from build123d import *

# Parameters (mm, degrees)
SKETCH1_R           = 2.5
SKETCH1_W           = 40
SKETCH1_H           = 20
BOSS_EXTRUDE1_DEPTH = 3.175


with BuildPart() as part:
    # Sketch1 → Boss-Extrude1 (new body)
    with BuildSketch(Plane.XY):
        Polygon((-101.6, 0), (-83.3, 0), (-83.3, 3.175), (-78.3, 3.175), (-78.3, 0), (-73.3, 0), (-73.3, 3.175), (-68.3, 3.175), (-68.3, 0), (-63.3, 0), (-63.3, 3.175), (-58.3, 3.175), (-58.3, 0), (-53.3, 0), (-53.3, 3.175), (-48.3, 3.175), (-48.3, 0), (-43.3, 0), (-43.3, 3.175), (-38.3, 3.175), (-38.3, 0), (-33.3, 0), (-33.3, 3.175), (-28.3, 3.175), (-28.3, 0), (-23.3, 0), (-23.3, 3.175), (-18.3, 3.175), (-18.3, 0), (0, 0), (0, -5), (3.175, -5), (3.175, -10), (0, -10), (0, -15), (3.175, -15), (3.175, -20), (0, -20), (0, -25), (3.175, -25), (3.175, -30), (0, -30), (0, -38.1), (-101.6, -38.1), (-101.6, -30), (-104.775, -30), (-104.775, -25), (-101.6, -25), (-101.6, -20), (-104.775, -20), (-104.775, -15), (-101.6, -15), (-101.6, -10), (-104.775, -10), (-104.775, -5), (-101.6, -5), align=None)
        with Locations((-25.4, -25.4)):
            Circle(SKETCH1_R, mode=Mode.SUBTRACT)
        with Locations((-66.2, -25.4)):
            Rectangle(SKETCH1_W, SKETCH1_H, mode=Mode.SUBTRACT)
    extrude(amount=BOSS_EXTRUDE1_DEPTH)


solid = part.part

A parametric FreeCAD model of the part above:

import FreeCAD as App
import Part
import Sketcher
from FreeCAD import Vector
Q = App.Units.Quantity

doc = App.newDocument("Part")
body = doc.addObject("PartDesign::Body", "Body")

sketch1 = body.newObject("Sketcher::SketchObject", "Sketch")
sketch1.AttachmentSupport = (doc.getObject("XY_Plane"), [""])
sketch1.MapMode = "FlatFace"
sketch1.addGeometry([
    Part.LineSegment(Vector(-83.3, 0, 0), Vector(-101.6, 0, 0)),
    Part.LineSegment(Vector(-101.6, 0, 0), Vector(-101.6, -5, 0)),
    Part.LineSegment(Vector(-101.6, -5, 0), Vector(-104.8, -5, 0)),
    Part.LineSegment(Vector(-104.8, -5, 0), Vector(-104.8, -10, 0)),
    Part.LineSegment(Vector(-104.8, -10, 0), Vector(-101.6, -10, 0)),
    Part.LineSegment(Vector(-101.6, -10, 0), Vector(-101.6, -15, 0)),
    Part.LineSegment(Vector(-101.6, -15, 0), Vector(-104.8, -15, 0)),
    Part.LineSegment(Vector(-104.8, -15, 0), Vector(-104.8, -20, 0)),
    Part.LineSegment(Vector(-104.8, -20, 0), Vector(-101.6, -20, 0)),
    Part.LineSegment(Vector(-101.6, -20, 0), Vector(-101.6, -25, 0)),
    Part.LineSegment(Vector(-101.6, -25, 0), Vector(-104.8, -25, 0)),
    Part.LineSegment(Vector(-104.8, -25, 0), Vector(-104.8, -30, 0)),
    Part.LineSegment(Vector(-104.8, -30, 0), Vector(-101.6, -30, 0)),
    Part.LineSegment(Vector(-101.6, -30, 0), Vector(-101.6, -38.1, 0)),
    Part.LineSegment(Vector(-101.6, -38.1, 0), Vector(0, -38.1, 0)),
    Part.LineSegment(Vector(0, -38.1, 0), Vector(0, -30, 0)),
    Part.LineSegment(Vector(0, -30, 0), Vector(3.2, -30, 0)),
    Part.LineSegment(Vector(3.2, -30, 0), Vector(3.2, -25, 0)),
    Part.LineSegment(Vector(3.2, -25, 0), Vector(0, -25, 0)),
    Part.LineSegment(Vector(0, -25, 0), Vector(0, -20, 0)),
    Part.LineSegment(Vector(0, -20, 0), Vector(3.2, -20, 0)),
    Part.LineSegment(Vector(3.2, -20, 0), Vector(3.2, -15, 0)),
    Part.LineSegment(Vector(3.2, -15, 0), Vector(0, -15, 0)),
    Part.LineSegment(Vector(0, -15, 0), Vector(0, -10, 0)),
    Part.LineSegment(Vector(0, -10, 0), Vector(3.2, -10, 0)),
    Part.LineSegment(Vector(3.2, -10, 0), Vector(3.2, -5, 0)),
    Part.LineSegment(Vector(3.2, -5, 0), Vector(0, -5, 0)),
    Part.LineSegment(Vector(0, -5, 0), Vector(0, 0, 0)),
    Part.LineSegment(Vector(0, 0, 0), Vector(-18.3, 0, 0)),
    Part.LineSegment(Vector(-18.3, 0, 0), Vector(-18.3, 3.2, 0)),
    Part.LineSegment(Vector(-18.3, 3.2, 0), Vector(-23.3, 3.2, 0)),
    Part.LineSegment(Vector(-23.3, 3.2, 0), Vector(-23.3, 0, 0)),
    Part.LineSegment(Vector(-23.3, 0, 0), Vector(-28.3, 0, 0)),
    Part.LineSegment(Vector(-28.3, 0, 0), Vector(-28.3, 3.2, 0)),
    Part.LineSegment(Vector(-28.3, 3.2, 0), Vector(-33.3, 3.2, 0)),
    Part.LineSegment(Vector(-33.3, 3.2, 0), Vector(-33.3, 0, 0)),
    Part.LineSegment(Vector(-33.3, 0, 0), Vector(-38.3, 0, 0)),
    Part.LineSegment(Vector(-38.3, 0, 0), Vector(-38.3, 3.2, 0)),
    Part.LineSegment(Vector(-38.3, 3.2, 0), Vector(-43.3, 3.2, 0)),
    Part.LineSegment(Vector(-43.3, 3.2, 0), Vector(-43.3, 0, 0)),
    Part.LineSegment(Vector(-43.3, 0, 0), Vector(-48.3, 0, 0)),
    Part.LineSegment(Vector(-48.3, 0, 0), Vector(-48.3, 3.2, 0)),
    Part.LineSegment(Vector(-48.3, 3.2, 0), Vector(-53.3, 3.2, 0)),
    Part.LineSegment(Vector(-53.3, 3.2, 0), Vector(-53.3, 0, 0)),
    Part.LineSegment(Vector(-53.3, 0, 0), Vector(-58.3, 0, 0)),
    Part.LineSegment(Vector(-58.3, 0, 0), Vector(-58.3, 3.2, 0)),
    Part.LineSegment(Vector(-58.3, 3.2, 0), Vector(-63.3, 3.2, 0)),
    Part.LineSegment(Vector(-63.3, 3.2, 0), Vector(-63.3, 0, 0)),
    Part.LineSegment(Vector(-63.3, 0, 0), Vector(-68.3, 0, 0)),
    Part.LineSegment(Vector(-68.3, 0, 0), Vector(-68.3, 3.2, 0)),
    Part.LineSegment(Vector(-68.3, 3.2, 0), Vector(-73.3, 3.2, 0)),
    Part.LineSegment(Vector(-73.3, 3.2, 0), Vector(-73.3, 0, 0)),
    Part.LineSegment(Vector(-73.3, 0, 0), Vector(-78.3, 0, 0)),
    Part.LineSegment(Vector(-78.3, 0, 0), Vector(-78.3, 3.2, 0)),
    Part.LineSegment(Vector(-78.3, 3.2, 0), Vector(-83.3, 3.2, 0)),
    Part.LineSegment(Vector(-83.3, 3.2, 0), Vector(-83.3, 0, 0)),
    Part.Circle(Vector(-25.4, -25.4, 0), Vector(0, 0, 1), 2.5),
    Part.LineSegment(Vector(-86.2, -35.4, 0), Vector(-86.2, -15.4, 0)),
    Part.LineSegment(Vector(-86.2, -15.4, 0), Vector(-46.2, -15.4, 0)),
    Part.LineSegment(Vector(-46.2, -15.4, 0), Vector(-46.2, -35.4, 0)),
    Part.LineSegment(Vector(-46.2, -35.4, 0), Vector(-86.2, -35.4, 0)),
], False)
sketch1.addConstraint([
    Sketcher.Constraint("Coincident", 0, 2, 1, 1),
    Sketcher.Constraint("Coincident", 1, 2, 2, 1),
    Sketcher.Constraint("Coincident", 2, 2, 3, 1),
    Sketcher.Constraint("Coincident", 3, 2, 4, 1),
    Sketcher.Constraint("Coincident", 4, 2, 5, 1),
    Sketcher.Constraint("Coincident", 5, 2, 6, 1),
    Sketcher.Constraint("Coincident", 6, 2, 7, 1),
    Sketcher.Constraint("Coincident", 7, 2, 8, 1),
    Sketcher.Constraint("Coincident", 8, 2, 9, 1),
    Sketcher.Constraint("Coincident", 9, 2, 10, 1),
    Sketcher.Constraint("Coincident", 10, 2, 11, 1),
    Sketcher.Constraint("Coincident", 11, 2, 12, 1),
    Sketcher.Constraint("Coincident", 12, 2, 13, 1),
    Sketcher.Constraint("Coincident", 13, 2, 14, 1),
    Sketcher.Constraint("Coincident", 14, 2, 15, 1),
    Sketcher.Constraint("Coincident", 15, 2, 16, 1),
    Sketcher.Constraint("Coincident", 16, 2, 17, 1),
    Sketcher.Constraint("Coincident", 17, 2, 18, 1),
    Sketcher.Constraint("Coincident", 18, 2, 19, 1),
    Sketcher.Constraint("Coincident", 19, 2, 20, 1),
    Sketcher.Constraint("Coincident", 20, 2, 21, 1),
    Sketcher.Constraint("Coincident", 21, 2, 22, 1),
    Sketcher.Constraint("Coincident", 22, 2, 23, 1),
    Sketcher.Constraint("Coincident", 23, 2, 24, 1),
    Sketcher.Constraint("Coincident", 24, 2, 25, 1),
    Sketcher.Constraint("Coincident", 25, 2, 26, 1),
    Sketcher.Constraint("Coincident", 26, 2, 27, 1),
    Sketcher.Constraint("Coincident", 27, 2, 28, 1),
    Sketcher.Constraint("Coincident", 28, 2, 29, 1),
    Sketcher.Constraint("Coincident", 29, 2, 30, 1),
    Sketcher.Constraint("Coincident", 30, 2, 31, 1),
    Sketcher.Constraint("Coincident", 31, 2, 32, 1),
    Sketcher.Constraint("Coincident", 32, 2, 33, 1),
    Sketcher.Constraint("Coincident", 33, 2, 34, 1),
    Sketcher.Constraint("Coincident", 34, 2, 35, 1),
    Sketcher.Constraint("Coincident", 35, 2, 36, 1),
    Sketcher.Constraint("Coincident", 36, 2, 37, 1),
    Sketcher.Constraint("Coincident", 37, 2, 38, 1),
    Sketcher.Constraint("Coincident", 38, 2, 39, 1),
    Sketcher.Constraint("Coincident", 39, 2, 40, 1),
    Sketcher.Constraint("Coincident", 40, 2, 41, 1),
    Sketcher.Constraint("Coincident", 41, 2, 42, 1),
    Sketcher.Constraint("Coincident", 42, 2, 43, 1),
    Sketcher.Constraint("Coincident", 43, 2, 44, 1),
    Sketcher.Constraint("Coincident", 44, 2, 45, 1),
    Sketcher.Constraint("Coincident", 45, 2, 46, 1),
    Sketcher.Constraint("Coincident", 46, 2, 47, 1),
    Sketcher.Constraint("Coincident", 47, 2, 48, 1),
    Sketcher.Constraint("Coincident", 48, 2, 49, 1),
    Sketcher.Constraint("Coincident", 49, 2, 50, 1),
    Sketcher.Constraint("Coincident", 50, 2, 51, 1),
    Sketcher.Constraint("Coincident", 51, 2, 52, 1),
    Sketcher.Constraint("Coincident", 52, 2, 53, 1),
    Sketcher.Constraint("Coincident", 53, 2, 54, 1),
    Sketcher.Constraint("Coincident", 54, 2, 55, 1),
    Sketcher.Constraint("Coincident", 55, 2, 0, 1),
    Sketcher.Constraint("Coincident", 57, 2, 58, 1),
    Sketcher.Constraint("Coincident", 58, 2, 59, 1),
    Sketcher.Constraint("Coincident", 59, 2, 60, 1),
    Sketcher.Constraint("Coincident", 60, 2, 57, 1),
    Sketcher.Constraint("Horizontal", 0),
    Sketcher.Constraint("Vertical", 1),
    Sketcher.Constraint("Horizontal", 2),
    Sketcher.Constraint("Vertical", 3),
    Sketcher.Constraint("Horizontal", 4),
    Sketcher.Constraint("Vertical", 5),
    Sketcher.Constraint("Horizontal", 6),
    Sketcher.Constraint("Vertical", 7),
    Sketcher.Constraint("Horizontal", 8),
    Sketcher.Constraint("Vertical", 9),
    Sketcher.Constraint("Horizontal", 10),
    Sketcher.Constraint("Vertical", 11),
    Sketcher.Constraint("Horizontal", 12),
    Sketcher.Constraint("Vertical", 13),
    Sketcher.Constraint("Horizontal", 14),
    Sketcher.Constraint("Vertical", 15),
    Sketcher.Constraint("Horizontal", 16),
    Sketcher.Constraint("Vertical", 17),
    Sketcher.Constraint("Horizontal", 18),
    Sketcher.Constraint("Vertical", 19),
    Sketcher.Constraint("Horizontal", 20),
    Sketcher.Constraint("Vertical", 21),
    Sketcher.Constraint("Horizontal", 22),
    Sketcher.Constraint("Vertical", 23),
    Sketcher.Constraint("Horizontal", 24),
    Sketcher.Constraint("Vertical", 25),
    Sketcher.Constraint("Horizontal", 26),
    Sketcher.Constraint("Vertical", 27),
    Sketcher.Constraint("Horizontal", 28),
    Sketcher.Constraint("Vertical", 29),
    Sketcher.Constraint("Horizontal", 30),
    Sketcher.Constraint("Vertical", 31),
    Sketcher.Constraint("Horizontal", 32),
    Sketcher.Constraint("Vertical", 33),
    Sketcher.Constraint("Horizontal", 34),
    Sketcher.Constraint("Vertical", 35),
    Sketcher.Constraint("Horizontal", 36),
    Sketcher.Constraint("Vertical", 37),
    Sketcher.Constraint("Horizontal", 38),
    Sketcher.Constraint("Vertical", 39),
    Sketcher.Constraint("Horizontal", 40),
    Sketcher.Constraint("Vertical", 41),
    Sketcher.Constraint("Horizontal", 42),
    Sketcher.Constraint("Vertical", 43),
    Sketcher.Constraint("Horizontal", 44),
    Sketcher.Constraint("Vertical", 45),
    Sketcher.Constraint("Horizontal", 46),
    Sketcher.Constraint("Vertical", 47),
    Sketcher.Constraint("Horizontal", 48),
    Sketcher.Constraint("Vertical", 49),
    Sketcher.Constraint("Horizontal", 50),
    Sketcher.Constraint("Vertical", 51),
    Sketcher.Constraint("Horizontal", 52),
    Sketcher.Constraint("Vertical", 53),
    Sketcher.Constraint("Horizontal", 54),
    Sketcher.Constraint("Vertical", 55),
    Sketcher.Constraint("Vertical", 57),
    Sketcher.Constraint("Horizontal", 58),
    Sketcher.Constraint("Vertical", 59),
    Sketcher.Constraint("Horizontal", 60),
    Sketcher.Constraint("Coincident", 27, 2, -1, 1),
    Sketcher.Constraint("PointOnObject", 0, 2, -1),
    Sketcher.Constraint("PointOnObject", 14, 2, -2),
    Sketcher.Constraint("PointOnObject", 18, 2, -2),
    Sketcher.Constraint("PointOnObject", 22, 2, -2),
    Sketcher.Constraint("PointOnObject", 31, 2, -1),
    Sketcher.Constraint("PointOnObject", 35, 2, -1),
    Sketcher.Constraint("PointOnObject", 39, 2, -1),
    Sketcher.Constraint("PointOnObject", 43, 2, -1),
    Sketcher.Constraint("PointOnObject", 47, 2, -1),
    Sketcher.Constraint("PointOnObject", 51, 2, -1),
    Sketcher.Constraint("Horizontal", 12, 2, 15, 2),
    Sketcher.Constraint("Horizontal", 10, 2, 17, 2),
    Sketcher.Constraint("Horizontal", 8, 2, 19, 2),
    Sketcher.Constraint("Horizontal", 6, 2, 21, 2),
    Sketcher.Constraint("Horizontal", 4, 2, 23, 2),
    Sketcher.Constraint("Horizontal", 2, 2, 25, 2),
    Sketcher.Constraint("Horizontal", 30, 2, 33, 2),
    Sketcher.Constraint("Horizontal", 34, 2, 37, 2),
    Sketcher.Constraint("Horizontal", 38, 2, 41, 2),
    Sketcher.Constraint("Horizontal", 42, 2, 45, 2),
    Sketcher.Constraint("Horizontal", 46, 2, 49, 2),
    Sketcher.Constraint("Horizontal", 50, 2, 53, 2),
    Sketcher.Constraint("Vertical", 1, 2, 4, 2),
    Sketcher.Constraint("Vertical", 3, 2, 6, 2),
    Sketcher.Constraint("Vertical", 5, 2, 8, 2),
    Sketcher.Constraint("Vertical", 7, 2, 10, 2),
    Sketcher.Constraint("Vertical", 9, 2, 12, 2),
    Sketcher.Constraint("Vertical", 17, 2, 20, 2),
    Sketcher.Constraint("Vertical", 21, 2, 24, 2),
    Sketcher.Constraint("Equal", 12, 16),
    Sketcher.Constraint("Equal", 0, 28),
    Sketcher.Constraint("Equal", 30, 32),
    Sketcher.Constraint("Equal", 32, 34),
    Sketcher.Constraint("Equal", 34, 36),
    Sketcher.Constraint("Equal", 36, 38),
    Sketcher.Constraint("Equal", 38, 40),
    Sketcher.Constraint("Equal", 40, 42),
    Sketcher.Constraint("Equal", 42, 44),
    Sketcher.Constraint("Equal", 44, 46),
    Sketcher.Constraint("Equal", 46, 48),
    Sketcher.Constraint("Equal", 48, 50),
    Sketcher.Constraint("Equal", 50, 52),
    Sketcher.Constraint("Equal", 52, 54),
    Sketcher.Constraint("Equal", 54, 1),
    Sketcher.Constraint("Equal", 1, 3),
    Sketcher.Constraint("Equal", 3, 5),
    Sketcher.Constraint("Equal", 5, 7),
    Sketcher.Constraint("Equal", 7, 9),
    Sketcher.Constraint("Equal", 9, 11),
    Sketcher.Constraint("Equal", 26, 29),
    Sketcher.Constraint("Diameter", 56, Q("5 mm")),
    Sketcher.Constraint("DistanceX", 30, 2, 30, 1, Q("5 mm")),
    Sketcher.Constraint("DistanceX", 58, 1, 58, 2, Q("40 mm")),
    Sketcher.Constraint("DistanceY", 57, 1, 57, 2, Q("20 mm")),
    Sketcher.Constraint("DistanceX", 0, 2, 0, 1, Q("18.3 mm")),
    Sketcher.Constraint("DistanceY", 13, 2, 13, 1, Q("8.1 mm")),
    Sketcher.Constraint("DistanceX", 56, 3, -1, 1, Q("25.4 mm")),
    Sketcher.Constraint("DistanceY", 56, 3, -1, 1, Q("25.4 mm")),
    Sketcher.Constraint("DistanceX", 57, 2, -1, 1, Q("86.2 mm")),
    Sketcher.Constraint("DistanceY", 57, 2, -1, 1, Q("15.4 mm")),
    Sketcher.Constraint("DistanceX", 2, 2, 2, 1, Q("3.175 mm")),
])
pad1 = body.newObject("PartDesign::Pad", "Pad")
pad1.Profile = sketch1
pad1.Length = 3.175

doc.recompute()
